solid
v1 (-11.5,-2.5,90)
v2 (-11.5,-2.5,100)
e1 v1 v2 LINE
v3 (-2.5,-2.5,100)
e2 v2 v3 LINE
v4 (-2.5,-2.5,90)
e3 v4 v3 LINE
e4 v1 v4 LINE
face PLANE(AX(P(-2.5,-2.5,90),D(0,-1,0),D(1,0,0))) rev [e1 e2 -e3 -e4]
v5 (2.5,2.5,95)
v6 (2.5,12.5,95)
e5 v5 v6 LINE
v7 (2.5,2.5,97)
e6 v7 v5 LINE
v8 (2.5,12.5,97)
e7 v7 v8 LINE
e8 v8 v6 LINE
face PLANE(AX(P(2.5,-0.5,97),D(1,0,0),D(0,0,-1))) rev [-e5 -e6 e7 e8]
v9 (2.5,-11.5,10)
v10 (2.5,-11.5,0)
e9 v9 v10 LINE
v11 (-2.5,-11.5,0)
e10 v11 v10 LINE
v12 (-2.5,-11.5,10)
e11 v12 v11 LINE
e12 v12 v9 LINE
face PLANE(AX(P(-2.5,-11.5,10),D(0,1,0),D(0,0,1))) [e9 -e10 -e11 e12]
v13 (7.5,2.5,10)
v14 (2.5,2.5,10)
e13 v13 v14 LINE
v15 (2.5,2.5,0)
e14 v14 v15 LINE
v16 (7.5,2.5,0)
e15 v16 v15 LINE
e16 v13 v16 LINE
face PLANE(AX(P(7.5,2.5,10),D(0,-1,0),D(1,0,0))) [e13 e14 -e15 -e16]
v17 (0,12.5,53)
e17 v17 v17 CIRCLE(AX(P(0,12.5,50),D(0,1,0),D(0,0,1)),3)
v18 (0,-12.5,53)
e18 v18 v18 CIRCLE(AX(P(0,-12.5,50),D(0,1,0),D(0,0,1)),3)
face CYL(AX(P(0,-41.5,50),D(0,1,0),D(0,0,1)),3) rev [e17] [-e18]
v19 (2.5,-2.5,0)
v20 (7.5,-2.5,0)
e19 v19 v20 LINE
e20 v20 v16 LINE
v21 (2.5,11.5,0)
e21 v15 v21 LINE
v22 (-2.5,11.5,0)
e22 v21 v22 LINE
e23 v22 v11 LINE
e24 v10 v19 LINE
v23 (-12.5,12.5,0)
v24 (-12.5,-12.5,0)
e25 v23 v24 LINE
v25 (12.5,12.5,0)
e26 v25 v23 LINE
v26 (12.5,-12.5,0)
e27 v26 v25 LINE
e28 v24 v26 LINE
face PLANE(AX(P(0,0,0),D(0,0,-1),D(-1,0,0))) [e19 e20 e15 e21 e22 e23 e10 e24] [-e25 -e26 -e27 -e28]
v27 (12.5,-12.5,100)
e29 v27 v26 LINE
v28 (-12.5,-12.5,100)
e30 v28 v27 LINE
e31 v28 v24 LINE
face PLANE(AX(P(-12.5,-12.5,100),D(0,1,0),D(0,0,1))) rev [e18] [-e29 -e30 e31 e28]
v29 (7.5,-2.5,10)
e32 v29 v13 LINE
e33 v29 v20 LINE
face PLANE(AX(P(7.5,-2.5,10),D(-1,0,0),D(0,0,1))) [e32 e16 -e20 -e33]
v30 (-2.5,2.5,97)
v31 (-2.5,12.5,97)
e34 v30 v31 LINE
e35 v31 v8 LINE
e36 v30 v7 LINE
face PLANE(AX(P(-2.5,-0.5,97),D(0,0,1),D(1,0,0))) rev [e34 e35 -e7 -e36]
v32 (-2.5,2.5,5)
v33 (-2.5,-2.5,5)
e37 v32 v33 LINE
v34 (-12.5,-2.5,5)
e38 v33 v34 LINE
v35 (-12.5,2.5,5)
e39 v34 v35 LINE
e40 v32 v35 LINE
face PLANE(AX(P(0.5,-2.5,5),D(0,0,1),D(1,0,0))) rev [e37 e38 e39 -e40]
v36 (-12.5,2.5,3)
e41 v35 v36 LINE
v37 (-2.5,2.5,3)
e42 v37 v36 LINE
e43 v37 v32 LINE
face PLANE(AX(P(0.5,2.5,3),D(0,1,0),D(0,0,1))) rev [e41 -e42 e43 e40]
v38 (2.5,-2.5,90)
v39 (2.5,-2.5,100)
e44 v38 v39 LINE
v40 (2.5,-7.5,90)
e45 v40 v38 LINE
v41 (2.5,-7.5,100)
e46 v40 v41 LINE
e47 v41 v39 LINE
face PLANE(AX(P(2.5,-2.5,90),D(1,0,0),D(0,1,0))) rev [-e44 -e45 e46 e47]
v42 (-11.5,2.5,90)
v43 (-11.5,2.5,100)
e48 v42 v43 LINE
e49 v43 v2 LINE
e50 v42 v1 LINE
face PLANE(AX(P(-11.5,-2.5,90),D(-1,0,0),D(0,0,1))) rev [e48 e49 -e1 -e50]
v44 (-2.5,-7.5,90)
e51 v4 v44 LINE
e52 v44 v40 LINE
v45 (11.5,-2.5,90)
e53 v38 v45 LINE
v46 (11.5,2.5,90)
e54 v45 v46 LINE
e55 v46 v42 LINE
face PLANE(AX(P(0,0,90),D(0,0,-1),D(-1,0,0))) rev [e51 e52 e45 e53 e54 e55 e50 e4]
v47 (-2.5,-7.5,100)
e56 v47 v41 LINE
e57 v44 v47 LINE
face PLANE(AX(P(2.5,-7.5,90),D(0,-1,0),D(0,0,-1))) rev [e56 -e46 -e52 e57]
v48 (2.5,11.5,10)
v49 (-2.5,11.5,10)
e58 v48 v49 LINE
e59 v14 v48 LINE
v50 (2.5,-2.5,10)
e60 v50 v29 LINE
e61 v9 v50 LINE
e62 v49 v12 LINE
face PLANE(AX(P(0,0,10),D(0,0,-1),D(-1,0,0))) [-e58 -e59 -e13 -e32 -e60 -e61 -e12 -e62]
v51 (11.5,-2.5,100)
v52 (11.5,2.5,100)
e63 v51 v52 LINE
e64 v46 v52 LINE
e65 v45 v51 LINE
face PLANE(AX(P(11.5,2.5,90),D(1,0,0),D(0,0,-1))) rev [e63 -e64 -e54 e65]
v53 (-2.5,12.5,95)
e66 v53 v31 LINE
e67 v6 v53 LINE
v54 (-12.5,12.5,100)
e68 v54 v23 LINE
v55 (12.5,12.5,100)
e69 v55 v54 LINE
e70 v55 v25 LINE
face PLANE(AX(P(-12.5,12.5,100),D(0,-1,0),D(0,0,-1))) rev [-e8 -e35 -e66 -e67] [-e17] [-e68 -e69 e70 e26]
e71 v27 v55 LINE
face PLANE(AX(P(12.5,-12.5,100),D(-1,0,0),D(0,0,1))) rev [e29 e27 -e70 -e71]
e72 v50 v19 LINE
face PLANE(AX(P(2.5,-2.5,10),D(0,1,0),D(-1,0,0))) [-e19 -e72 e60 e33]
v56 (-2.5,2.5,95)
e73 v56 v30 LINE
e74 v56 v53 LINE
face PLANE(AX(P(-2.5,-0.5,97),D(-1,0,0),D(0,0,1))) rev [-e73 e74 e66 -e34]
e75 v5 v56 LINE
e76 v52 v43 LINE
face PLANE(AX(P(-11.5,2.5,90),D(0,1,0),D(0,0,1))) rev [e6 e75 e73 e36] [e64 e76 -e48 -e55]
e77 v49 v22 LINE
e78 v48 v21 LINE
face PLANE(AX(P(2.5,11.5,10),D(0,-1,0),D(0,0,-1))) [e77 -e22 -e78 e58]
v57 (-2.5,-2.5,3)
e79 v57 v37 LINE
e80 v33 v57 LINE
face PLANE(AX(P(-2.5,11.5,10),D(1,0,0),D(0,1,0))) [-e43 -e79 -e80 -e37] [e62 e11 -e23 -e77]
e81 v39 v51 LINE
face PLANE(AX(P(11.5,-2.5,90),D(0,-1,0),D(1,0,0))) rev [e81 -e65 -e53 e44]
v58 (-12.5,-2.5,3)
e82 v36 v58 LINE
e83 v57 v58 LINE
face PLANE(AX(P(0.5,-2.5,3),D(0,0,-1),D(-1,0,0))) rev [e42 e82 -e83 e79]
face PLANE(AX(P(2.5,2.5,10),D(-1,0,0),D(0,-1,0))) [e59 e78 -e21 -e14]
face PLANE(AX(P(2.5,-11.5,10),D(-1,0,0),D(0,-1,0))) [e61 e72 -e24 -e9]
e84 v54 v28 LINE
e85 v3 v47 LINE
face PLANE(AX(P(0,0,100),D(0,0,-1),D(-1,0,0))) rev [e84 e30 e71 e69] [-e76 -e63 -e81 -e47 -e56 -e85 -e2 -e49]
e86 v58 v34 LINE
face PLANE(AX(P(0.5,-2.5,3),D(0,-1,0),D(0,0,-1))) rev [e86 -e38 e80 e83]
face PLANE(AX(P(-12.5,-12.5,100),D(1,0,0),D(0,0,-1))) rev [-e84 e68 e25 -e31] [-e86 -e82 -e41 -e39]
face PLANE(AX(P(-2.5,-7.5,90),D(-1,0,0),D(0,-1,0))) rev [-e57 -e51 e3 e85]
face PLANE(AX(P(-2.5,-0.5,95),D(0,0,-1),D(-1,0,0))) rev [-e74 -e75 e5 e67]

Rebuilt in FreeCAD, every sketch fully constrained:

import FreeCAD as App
import Part
import Sketcher
from FreeCAD import Vector
Q = App.Units.Quantity

doc = App.newDocument("Part")
params = doc.addObject("Spreadsheet::Sheet", "Params")
for row, (alias, value) in enumerate([
    ("sketch1_width", "25 mm"),
    ("pad1_length", "100 mm"),
    ("sketch2_width", "23 mm"),
    ("sketch2_width2", "9 mm"),
    ("pocket1_length", "10 mm"),
    ("sketch3_diameter", "6 mm"),
    ("pocket2_length", "54 mm"),
    ("sketch4_width", "5 mm"),
    ("sketch4_height", "23 mm"),
    ("pocket3_length", "10 mm"),
    ("sketch5_width", "5 mm"),
    ("sketch5_height", "2 mm"),
    ("pocket4_length", "13 mm"),
    ("sketch6_width", "5 mm"),
    ("sketch6_height", "2 mm"),
    ("pocket5_length", "13 mm"),
], start=1):
    params.set(f"A{row}", alias)
    params.set(f"B{row}", "=" + value)
    params.setAlias(f"B{row}", alias)

body = doc.addObject("PartDesign::Body", "Body")

sketch1 = body.newObject("Sketcher::SketchObject", "Sketch")
sketch1.AttachmentSupport = (doc.getObject("XY_Plane"), [""])
sketch1.MapMode = "FlatFace"
sketch1.addGeometry([
    Part.LineSegment(Vector(-12, 12, 0), Vector(-12, -12, 0)),
    Part.LineSegment(Vector(-12, -12, 0), Vector(12, -12, 0)),
    Part.LineSegment(Vector(12, -12, 0), Vector(12, 12, 0)),
    Part.LineSegment(Vector(12, 12, 0), Vector(-12, 12, 0)),
], False)
sketch1.addConstraint([
    Sketcher.Constraint("Coincident", 0, 2, 1, 1),
    Sketcher.Constraint("Coincident", 1, 2, 2, 1),
    Sketcher.Constraint("Coincident", 2, 2, 3, 1),
    Sketcher.Constraint("Coincident", 3, 2, 0, 1),
    Sketcher.Constraint("Vertical", 0),
    Sketcher.Constraint("Horizontal", 1),
    Sketcher.Constraint("Vertical", 2),
    Sketcher.Constraint("Horizontal", 3),
    Sketcher.Constraint("Symmetric", 0, 2, 2, 2, -1, 1),
    Sketcher.Constraint("Equal", 3, 0),
    Sketcher.Constraint("DistanceX", 1, 1, 1, 2, Q("25 mm")),
])
sketch1.setExpression("Constraints[10]", "Params.sketch1_width")
pad1 = body.newObject("PartDesign::Pad", "Pad")
pad1.Profile = sketch1
pad1.setExpression("Length", "Params.pad1_length")

sketch2 = body.newObject("Sketcher::SketchObject", "Sketch001")
sketch2.AttachmentSupport = (doc.getObject("XY_Plane"), [""])
sketch2.MapMode = "FlatFace"
sketch2.AttachmentOffset = App.Placement(Vector(0, 0, 100), App.Rotation())
sketch2.addGeometry([
    Part.LineSegment(Vector(12, 2, 0), Vector(-12, 2, 0)),
    Part.LineSegment(Vector(-12, 2, 0), Vector(-12, -2, 0)),
    Part.LineSegment(Vector(-12, -2, 0), Vector(-2, -2, 0)),
    Part.LineSegment(Vector(-2, -2, 0), Vector(-2, -8, 0)),
    Part.LineSegment(Vector(-2, -8, 0), Vector(2, -8, 0)),
    Part.LineSegment(Vector(2, -8, 0), Vector(2, -2, 0)),
    Part.LineSegment(Vector(2, -2, 0), Vector(12, -2, 0)),
    Part.LineSegment(Vector(12, -2, 0), Vector(12, 2, 0)),
], False)
sketch2.addConstraint([
    Sketcher.Constraint("Coincident", 0, 2, 1, 1),
    Sketcher.Constraint("Coincident", 1, 2, 2, 1),
    Sketcher.Constraint("Coincident", 2, 2, 3, 1),
    Sketcher.Constraint("Coincident", 3, 2, 4, 1),
    Sketcher.Constraint("Coincident", 4, 2, 5, 1),
    Sketcher.Constraint("Coincident", 5, 2, 6, 1),
    Sketcher.Constraint("Coincident", 6, 2, 7, 1),
    Sketcher.Constraint("Coincident", 7, 2, 0, 1),
    Sketcher.Constraint("Horizontal", 0),
    Sketcher.Constraint("Vertical", 1),
    Sketcher.Constraint("Horizontal", 2),
    Sketcher.Constraint("Vertical", 3),
    Sketcher.Constraint("Horizontal", 4),
    Sketcher.Constraint("Vertical", 5),
    Sketcher.Constraint("Horizontal", 6),
    Sketcher.Constraint("Vertical", 7),
    Sketcher.Constraint("Symmetric", 0, 2, 6, 2, -1, 1),
    Sketcher.Constraint("Symmetric", 2, 2, 5, 2, -2),
    Sketcher.Constraint("Equal", 4, 1),
    Sketcher.Constraint("Equal", 1, 3),
    Sketcher.Constraint("DistanceX", 0, 2, 0, 1, Q("23 mm")),
    Sketcher.Constraint("DistanceX", 2, 1, 2, 2, Q("9 mm")),
])
sketch2.setExpression("Constraints[20]", "Params.sketch2_width")
sketch2.setExpression("Constraints[21]", "Params.sketch2_width2")
pocket1 = body.newObject("PartDesign::Pocket", "Pocket")
pocket1.Profile = sketch2
pocket1.setExpression("Length", "Params.pocket1_length")

sketch3 = body.newObject("Sketcher::SketchObject", "Sketch002")
sketch3.AttachmentSupport = (doc.getObject("XZ_Plane"), [""])
sketch3.MapMode = "FlatFace"
sketch3.AttachmentOffset = App.Placement(Vector(0, 0, -12.5), App.Rotation())
sketch3.addGeometry(Part.Circle(Vector(0, 50, 0), Vector(0, 0, 1), 3), False)
sketch3.addConstraint([
    Sketcher.Constraint("PointOnObject", 0, 3, -2),
    Sketcher.Constraint("Diameter", 0, Q("6 mm")),
    Sketcher.Constraint("DistanceY", -1, 1, 0, 3, Q("50 mm")),
])
sketch3.setExpression("Constraints[1]", "Params.sketch3_diameter")
pocket2 = body.newObject("PartDesign::Pocket", "Pocket001")
pocket2.Profile = sketch3
pocket2.setExpression("Length", "Params.pocket2_length")
pocket2.Reversed = True

sketch4 = body.newObject("Sketcher::SketchObject", "Sketch003")
sketch4.AttachmentSupport = (doc.getObject("XY_Plane"), [""])
sketch4.MapMode = "FlatFace"
sketch4.addGeometry([
    Part.LineSegment(Vector(2, 12, 0), Vector(-2, 12, 0)),
    Part.LineSegment(Vector(-2, 12, 0), Vector(-2, -12, 0)),
    Part.LineSegment(Vector(-2, -12, 0), Vector(2, -12, 0)),
    Part.LineSegment(Vector(2, -12, 0), Vector(2, -2, 0)),
    Part.LineSegment(Vector(2, -2, 0), Vector(8, -2, 0)),
    Part.LineSegment(Vector(8, -2, 0), Vector(8, 2, 0)),
    Part.LineSegment(Vector(8, 2, 0), Vector(2, 2, 0)),
    Part.LineSegment(Vector(2, 2, 0), Vector(2, 12, 0)),
], False)
sketch4.addConstraint([
    Sketcher.Constraint("Coincident", 0, 2, 1, 1),
    Sketcher.Constraint("Coincident", 1, 2, 2, 1),
    Sketcher.Constraint("Coincident", 2, 2, 3, 1),
    Sketcher.Constraint("Coincident", 3, 2, 4, 1),
    Sketcher.Constraint("Coincident", 4, 2, 5, 1),
    Sketcher.Constraint("Coincident", 5, 2, 6, 1),
    Sketcher.Constraint("Coincident", 6, 2, 7, 1),
    Sketcher.Constraint("Coincident", 7, 2, 0, 1),
    Sketcher.Constraint("Horizontal", 0),
    Sketcher.Constraint("Vertical", 1),
    Sketcher.Constraint("Horizontal", 2),
    Sketcher.Constraint("Vertical", 3),
    Sketcher.Constraint("Horizontal", 4),
    Sketcher.Constraint("Vertical", 5),
    Sketcher.Constraint("Horizontal", 6),
    Sketcher.Constraint("Vertical", 7),
    Sketcher.Constraint("Symmetric", 0, 2, 2, 2, -1, 1),
    Sketcher.Constraint("Symmetric", 3, 2, 6, 2, -1),
    Sketcher.Constraint("Equal", 2, 4),
    Sketcher.Constraint("Equal", 6, 5),
    Sketcher.Constraint("DistanceX", 0, 2, 0, 1, Q("5 mm")),
    Sketcher.Constraint("DistanceY", 1, 2, 1, 1, Q("23 mm")),
])
sketch4.setExpression("Constraints[20]", "Params.sketch4_width")
sketch4.setExpression("Constraints[21]", "Params.sketch4_height")
pocket3 = body.newObject("PartDesign::Pocket", "Pocket002")
pocket3.Profile = sketch4
pocket3.setExpression("Length", "Params.pocket3_length")
pocket3.Reversed = True

sketch5 = body.newObject("Sketcher::SketchObject", "Sketch004")
sketch5.AttachmentSupport = (doc.getObject("XZ_Plane"), [""])
sketch5.MapMode = "FlatFace"
sketch5.AttachmentOffset = App.Placement(Vector(0, 0, -12.5), App.Rotation())
sketch5.addGeometry([
    Part.LineSegment(Vector(-2.5, 95, 0), Vector(-2.5, 97, 0)),
    Part.LineSegment(Vector(-2.5, 97, 0), Vector(2.5, 97, 0)),
    Part.LineSegment(Vector(2.5, 97, 0), Vector(2.5, 95, 0)),
    Part.LineSegment(Vector(2.5, 95, 0), Vector(-2.5, 95, 0)),
], False)
sketch5.addConstraint([
    Sketcher.Constraint("Coincident", 0, 2, 1, 1),
    Sketcher.Constraint("Coincident", 1, 2, 2, 1),
    Sketcher.Constraint("Coincident", 2, 2, 3, 1),
    Sketcher.Constraint("Coincident", 3, 2, 0, 1),
    Sketcher.Constraint("Vertical", 0),
    Sketcher.Constraint("Horizontal", 1),
    Sketcher.Constraint("Vertical", 2),
    Sketcher.Constraint("Horizontal", 3),
    Sketcher.Constraint("DistanceX", 1, 1, 1, 2, Q("5 mm")),
    Sketcher.Constraint("DistanceY", 0, 1, 0, 2, Q("2 mm")),
    Sketcher.Constraint("DistanceY", -1, 1, 0, 2, Q("97 mm")),
    Sketcher.Constraint("DistanceX", 0, 2, -1, 1, Q("2.5 mm")),
])
sketch5.setExpression("Constraints[8]", "Params.sketch5_width")
sketch5.setExpression("Constraints[9]", "Params.sketch5_height")
pocket4 = body.newObject("PartDesign::Pocket", "Pocket003")
pocket4.Profile = sketch5
pocket4.setExpression("Length", "Params.pocket4_length")
pocket4.Reversed = True

sketch6 = body.newObject("Sketcher::SketchObject", "Sketch005")
sketch6.AttachmentSupport = (doc.getObject("YZ_Plane"), [""])
sketch6.MapMode = "FlatFace"
sketch6.AttachmentOffset = App.Placement(Vector(0, 0, -12.5), App.Rotation())
sketch6.addGeometry([
    Part.LineSegment(Vector(2.5, 3, 0), Vector(-2.5, 3, 0)),
    Part.LineSegment(Vector(-2.5, 3, 0), Vector(-2.5, 5, 0)),
    Part.LineSegment(Vector(-2.5, 5, 0), Vector(2.5, 5, 0)),
    Part.LineSegment(Vector(2.5, 5, 0), Vector(2.5, 3, 0)),
], False)
sketch6.addConstraint([
    Sketcher.Constraint("Coincident", 0, 2, 1, 1),
    Sketcher.Constraint("Coincident", 1, 2, 2, 1),
    Sketcher.Constraint("Coincident", 2, 2, 3, 1),
    Sketcher.Constraint("Coincident", 3, 2, 0, 1),
    Sketcher.Constraint("Horizontal", 0),
    Sketcher.Constraint("Vertical", 1),
    Sketcher.Constraint("Horizontal", 2),
    Sketcher.Constraint("Vertical", 3),
    Sketcher.Constraint("DistanceX", 0, 2, 0, 1, Q("5 mm")),
    Sketcher.Constraint("DistanceY", 1, 1, 1, 2, Q("2 mm")),
    Sketcher.Constraint("DistanceY", -1, 1, 0, 2, Q("3 mm")),
    Sketcher.Constraint("DistanceX", 0, 2, -1, 1, Q("2.5 mm")),
])
sketch6.setExpression("Constraints[8]", "Params.sketch6_width")
sketch6.setExpression("Constraints[9]", "Params.sketch6_height")
pocket5 = body.newObject("PartDesign::Pocket", "Pocket004")
pocket5.Profile = sketch6
pocket5.setExpression("Length", "Params.pocket5_length")
pocket5.Reversed = True

doc.recompute()
